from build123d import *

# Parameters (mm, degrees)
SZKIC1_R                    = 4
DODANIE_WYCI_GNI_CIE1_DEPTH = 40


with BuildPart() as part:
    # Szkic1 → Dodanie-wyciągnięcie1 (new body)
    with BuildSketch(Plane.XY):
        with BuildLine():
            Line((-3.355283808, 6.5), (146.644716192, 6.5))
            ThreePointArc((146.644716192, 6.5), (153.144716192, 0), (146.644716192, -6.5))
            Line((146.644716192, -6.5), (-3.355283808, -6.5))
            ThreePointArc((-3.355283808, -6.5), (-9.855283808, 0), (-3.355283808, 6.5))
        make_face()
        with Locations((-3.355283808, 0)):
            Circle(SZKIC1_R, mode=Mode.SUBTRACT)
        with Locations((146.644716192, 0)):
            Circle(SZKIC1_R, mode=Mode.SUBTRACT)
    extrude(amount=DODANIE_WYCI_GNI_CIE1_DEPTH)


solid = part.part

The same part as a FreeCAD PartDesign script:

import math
import FreeCAD as App
import Part
import Sketcher
from FreeCAD import Vector
Q = App.Units.Quantity

doc = App.newDocument("Part")
body = doc.addObject("PartDesign::Body", "Body")

sketch1 = doc.addObject("Sketcher::SketchObject", "Sketch")
body.addObject(sketch1)
sketch1.AttachmentSupport = (doc.XY_Plane, [""])
sketch1.MapMode = "FlatFace"
sketch1.addGeometry(Part.LineSegment(Vector(146.6, 6.5, 0), Vector(-3.4, 6.5, 0)), False)
sketch1.addGeometry(Part.ArcOfCircle(Part.Circle(Vector(-3.4, 0, 0), Vector(0, 0, 1), 6.5), math.radians(90), math.radians(270)), False)
sketch1.addGeometry(Part.LineSegment(Vector(-3.4, -6.5, 0), Vector(146.6, -6.5, 0)), False)
sketch1.addGeometry(Part.ArcOfCircle(Part.Circle(Vector(146.6, 0, 0), Vector(0, 0, 1), 6.5), math.radians(-90), math.radians(90)), False)
sketch1.addGeometry(Part.Circle(Vector(146.6, 0, 0), Vector(0, 0, 1), 4), False)
sketch1.addGeometry(Part.Circle(Vector(-3.4, 0, 0), Vector(0, 0, 1), 4), False)
sketch1.addConstraint(Sketcher.Constraint("Tangent", 0, 2, 1, 1))
sketch1.addConstraint(Sketcher.Constraint("Tangent", 1, 2, 2, 1))
sketch1.addConstraint(Sketcher.Constraint("Tangent", 2, 2, 3, 1))
sketch1.addConstraint(Sketcher.Constraint("Tangent", 3, 2, 0, 1))
sketch1.addConstraint(Sketcher.Constraint("Horizontal", 0))
sketch1.addConstraint(Sketcher.Constraint("Horizontal", 2))
sketch1.addConstraint(Sketcher.Constraint("Coincident", 4, 3, 3, 3))
sketch1.addConstraint(Sketcher.Constraint("Coincident", 5, 3, 1, 3))
sketch1.addConstraint(Sketcher.Constraint("Equal", 4, 5))
sketch1.addConstraint(Sketcher.Constraint("PointOnObject", 1, 3, -1))
sketch1.addConstraint(Sketcher.Constraint("Diameter", 4, Q("8 mm")))
sketch1.addConstraint(Sketcher.Constraint("Radius", 1, Q("6.5 mm")))
sketch1.addConstraint(Sketcher.Constraint("DistanceX", 0, 2, 0, 1, Q("150 mm")))
sketch1.addConstraint(Sketcher.Constraint("DistanceX", 1, 3, -1, 1, Q("3.355284 mm")))
pad1 = doc.addObject("PartDesign::Pad", "Pad")
body.addObject(pad1)
pad1.Profile = sketch1
pad1.Length = 40

doc.recompute()
